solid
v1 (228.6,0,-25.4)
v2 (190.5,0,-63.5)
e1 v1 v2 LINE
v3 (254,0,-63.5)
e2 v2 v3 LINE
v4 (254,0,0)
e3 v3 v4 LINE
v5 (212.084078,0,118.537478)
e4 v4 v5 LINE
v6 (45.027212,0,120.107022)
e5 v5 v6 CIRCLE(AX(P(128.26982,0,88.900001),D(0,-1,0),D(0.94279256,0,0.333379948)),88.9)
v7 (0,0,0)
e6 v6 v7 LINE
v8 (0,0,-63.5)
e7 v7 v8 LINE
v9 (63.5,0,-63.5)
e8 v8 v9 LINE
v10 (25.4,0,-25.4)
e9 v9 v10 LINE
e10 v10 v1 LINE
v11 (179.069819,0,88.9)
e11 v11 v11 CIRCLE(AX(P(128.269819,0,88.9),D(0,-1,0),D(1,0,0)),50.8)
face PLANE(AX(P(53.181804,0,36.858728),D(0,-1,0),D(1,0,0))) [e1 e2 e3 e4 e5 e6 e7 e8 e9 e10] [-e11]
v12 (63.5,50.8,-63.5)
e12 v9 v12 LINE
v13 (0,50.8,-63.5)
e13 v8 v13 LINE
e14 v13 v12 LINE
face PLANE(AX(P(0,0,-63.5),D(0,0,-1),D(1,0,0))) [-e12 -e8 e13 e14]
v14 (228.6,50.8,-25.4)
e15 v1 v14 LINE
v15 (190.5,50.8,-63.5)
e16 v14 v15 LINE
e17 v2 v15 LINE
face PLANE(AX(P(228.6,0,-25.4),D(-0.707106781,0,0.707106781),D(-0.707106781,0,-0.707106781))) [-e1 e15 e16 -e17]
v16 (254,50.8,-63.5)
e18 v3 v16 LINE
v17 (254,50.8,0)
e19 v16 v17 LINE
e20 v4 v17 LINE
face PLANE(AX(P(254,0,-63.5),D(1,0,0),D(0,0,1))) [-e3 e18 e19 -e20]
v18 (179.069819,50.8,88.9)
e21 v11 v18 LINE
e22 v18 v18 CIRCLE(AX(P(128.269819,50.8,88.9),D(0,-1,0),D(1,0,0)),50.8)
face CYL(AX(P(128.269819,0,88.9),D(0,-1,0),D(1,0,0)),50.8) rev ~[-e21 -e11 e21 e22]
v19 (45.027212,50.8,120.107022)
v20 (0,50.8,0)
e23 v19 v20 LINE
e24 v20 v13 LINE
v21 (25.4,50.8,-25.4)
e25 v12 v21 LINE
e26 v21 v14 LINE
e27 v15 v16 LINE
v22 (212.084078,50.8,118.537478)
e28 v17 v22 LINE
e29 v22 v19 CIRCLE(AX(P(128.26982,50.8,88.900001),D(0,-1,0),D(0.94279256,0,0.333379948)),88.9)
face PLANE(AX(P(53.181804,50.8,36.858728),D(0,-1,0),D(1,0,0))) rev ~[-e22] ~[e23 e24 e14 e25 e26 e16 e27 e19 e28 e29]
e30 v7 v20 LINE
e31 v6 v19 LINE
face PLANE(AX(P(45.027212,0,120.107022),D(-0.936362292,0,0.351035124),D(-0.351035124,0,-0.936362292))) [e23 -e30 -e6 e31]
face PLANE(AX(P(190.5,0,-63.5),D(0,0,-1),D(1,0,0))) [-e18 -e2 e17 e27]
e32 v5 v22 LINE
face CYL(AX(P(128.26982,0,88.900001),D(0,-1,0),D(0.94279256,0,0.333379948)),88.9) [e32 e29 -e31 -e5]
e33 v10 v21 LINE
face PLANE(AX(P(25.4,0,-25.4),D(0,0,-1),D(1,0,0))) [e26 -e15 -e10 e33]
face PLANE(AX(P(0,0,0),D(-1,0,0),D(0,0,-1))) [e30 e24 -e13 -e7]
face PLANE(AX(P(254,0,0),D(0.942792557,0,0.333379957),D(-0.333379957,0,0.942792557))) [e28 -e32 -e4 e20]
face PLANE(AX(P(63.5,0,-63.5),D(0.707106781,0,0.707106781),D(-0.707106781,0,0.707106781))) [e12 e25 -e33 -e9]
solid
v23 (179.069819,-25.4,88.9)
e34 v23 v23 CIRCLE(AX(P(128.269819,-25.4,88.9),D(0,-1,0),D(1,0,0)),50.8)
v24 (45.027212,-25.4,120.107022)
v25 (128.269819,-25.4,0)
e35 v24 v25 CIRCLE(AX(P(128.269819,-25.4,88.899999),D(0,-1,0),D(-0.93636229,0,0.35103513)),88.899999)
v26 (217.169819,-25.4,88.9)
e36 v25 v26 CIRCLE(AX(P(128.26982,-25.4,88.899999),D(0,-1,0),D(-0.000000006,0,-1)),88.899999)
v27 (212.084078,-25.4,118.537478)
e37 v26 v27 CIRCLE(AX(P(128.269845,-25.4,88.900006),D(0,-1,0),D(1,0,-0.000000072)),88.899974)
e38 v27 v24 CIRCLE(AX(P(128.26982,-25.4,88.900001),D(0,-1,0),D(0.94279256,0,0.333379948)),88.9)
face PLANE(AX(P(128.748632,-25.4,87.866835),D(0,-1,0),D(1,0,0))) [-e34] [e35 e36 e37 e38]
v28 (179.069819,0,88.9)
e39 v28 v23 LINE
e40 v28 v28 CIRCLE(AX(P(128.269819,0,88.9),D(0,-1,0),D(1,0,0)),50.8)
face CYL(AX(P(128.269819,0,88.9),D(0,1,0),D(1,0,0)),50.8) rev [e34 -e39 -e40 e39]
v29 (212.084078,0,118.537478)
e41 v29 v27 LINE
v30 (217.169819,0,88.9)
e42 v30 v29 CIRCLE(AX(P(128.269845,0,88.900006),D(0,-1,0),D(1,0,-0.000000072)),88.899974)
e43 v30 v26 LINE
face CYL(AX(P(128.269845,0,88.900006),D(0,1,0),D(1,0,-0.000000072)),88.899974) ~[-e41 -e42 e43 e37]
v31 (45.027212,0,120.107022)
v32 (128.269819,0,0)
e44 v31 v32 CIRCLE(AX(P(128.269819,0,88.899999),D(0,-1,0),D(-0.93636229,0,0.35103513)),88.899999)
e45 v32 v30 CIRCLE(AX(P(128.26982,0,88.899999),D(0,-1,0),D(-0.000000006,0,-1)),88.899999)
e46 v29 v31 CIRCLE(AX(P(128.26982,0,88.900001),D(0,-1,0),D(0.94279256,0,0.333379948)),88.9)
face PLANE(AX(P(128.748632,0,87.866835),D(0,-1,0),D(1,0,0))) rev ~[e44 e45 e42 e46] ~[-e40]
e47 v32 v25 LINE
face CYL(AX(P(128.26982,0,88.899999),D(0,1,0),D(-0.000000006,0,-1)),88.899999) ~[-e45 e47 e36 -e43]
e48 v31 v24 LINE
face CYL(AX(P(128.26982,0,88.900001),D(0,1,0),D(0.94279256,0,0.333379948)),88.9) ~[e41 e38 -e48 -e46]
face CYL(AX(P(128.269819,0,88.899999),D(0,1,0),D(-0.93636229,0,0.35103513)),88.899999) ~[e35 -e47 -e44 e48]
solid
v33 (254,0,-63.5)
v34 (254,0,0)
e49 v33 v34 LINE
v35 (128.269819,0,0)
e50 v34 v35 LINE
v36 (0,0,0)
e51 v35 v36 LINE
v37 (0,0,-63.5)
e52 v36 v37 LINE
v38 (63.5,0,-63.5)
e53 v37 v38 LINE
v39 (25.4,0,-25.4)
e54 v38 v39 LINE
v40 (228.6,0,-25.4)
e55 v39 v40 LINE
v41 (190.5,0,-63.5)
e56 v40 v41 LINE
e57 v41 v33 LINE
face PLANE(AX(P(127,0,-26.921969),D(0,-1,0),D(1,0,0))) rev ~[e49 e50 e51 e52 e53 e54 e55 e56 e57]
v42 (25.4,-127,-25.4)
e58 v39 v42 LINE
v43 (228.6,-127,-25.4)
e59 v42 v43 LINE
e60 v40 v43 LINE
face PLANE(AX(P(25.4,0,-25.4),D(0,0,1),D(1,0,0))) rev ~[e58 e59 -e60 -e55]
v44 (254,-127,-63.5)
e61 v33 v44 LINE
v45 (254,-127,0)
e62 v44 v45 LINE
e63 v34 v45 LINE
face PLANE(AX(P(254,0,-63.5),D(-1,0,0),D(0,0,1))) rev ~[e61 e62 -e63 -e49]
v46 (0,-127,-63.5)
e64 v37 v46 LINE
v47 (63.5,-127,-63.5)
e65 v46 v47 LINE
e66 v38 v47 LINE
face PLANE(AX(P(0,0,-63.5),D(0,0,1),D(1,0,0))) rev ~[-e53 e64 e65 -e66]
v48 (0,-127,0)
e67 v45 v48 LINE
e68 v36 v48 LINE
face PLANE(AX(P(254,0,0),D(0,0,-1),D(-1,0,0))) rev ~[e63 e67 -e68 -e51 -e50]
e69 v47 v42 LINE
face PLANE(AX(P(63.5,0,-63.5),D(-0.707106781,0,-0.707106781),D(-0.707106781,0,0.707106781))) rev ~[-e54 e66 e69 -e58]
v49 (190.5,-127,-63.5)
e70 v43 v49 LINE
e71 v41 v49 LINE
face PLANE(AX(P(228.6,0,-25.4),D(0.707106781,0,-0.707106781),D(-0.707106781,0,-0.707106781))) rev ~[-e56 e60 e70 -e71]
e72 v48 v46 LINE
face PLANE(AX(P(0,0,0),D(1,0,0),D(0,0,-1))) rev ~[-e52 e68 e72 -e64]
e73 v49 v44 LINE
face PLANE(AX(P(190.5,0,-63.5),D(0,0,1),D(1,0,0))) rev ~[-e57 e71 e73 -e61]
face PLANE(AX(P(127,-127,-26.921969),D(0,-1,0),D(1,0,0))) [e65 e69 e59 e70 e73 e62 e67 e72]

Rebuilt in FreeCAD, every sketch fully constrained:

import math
import FreeCAD as App
import Part
import Sketcher

V = App.Vector
Q = App.Units.Quantity

doc = App.newDocument("Part")
body = doc.addObject("PartDesign::Body", "Body")
body.AllowCompound = True

sketch1 = doc.addObject("Sketcher::SketchObject", "Sketch")
body.addObject(sketch1)
sketch1.AttachmentSupport = (doc.XZ_Plane, [""])
sketch1.MapMode = "FlatFace"
sketch1.addGeometry(Part.LineSegment(V(0, 0, 0), V(0, -63.5, 0)), False)
sketch1.addGeometry(Part.LineSegment(V(0, -63.5, 0), V(63.5, -63.5, 0)), False)
sketch1.addGeometry(Part.LineSegment(V(63.5, -63.5, 0), V(25.4, -25.4, 0)), False)
sketch1.addGeometry(Part.LineSegment(V(25.4, -25.4, 0), V(228.6, -25.4, 0)), False)
sketch1.addGeometry(Part.LineSegment(V(228.6, -25.4, 0), V(190.5, -63.5, 0)), False)
sketch1.addGeometry(Part.LineSegment(V(190.5, -63.5, 0), V(254, -63.5, 0)), False)
sketch1.addGeometry(Part.LineSegment(V(254, -63.5, 0), V(254, 0, 0)), False)
sketch1.addGeometry(Part.LineSegment(V(254, 0, 0), V(0, 0, 0)), False)
sketch1.addConstraint(Sketcher.Constraint("Coincident", 0, 2, 1, 1))
sketch1.addConstraint(Sketcher.Constraint("Coincident", 1, 2, 2, 1))
sketch1.addConstraint(Sketcher.Constraint("Coincident", 2, 2, 3, 1))
sketch1.addConstraint(Sketcher.Constraint("Coincident", 3, 2, 4, 1))
sketch1.addConstraint(Sketcher.Constraint("Coincident", 4, 2, 5, 1))
sketch1.addConstraint(Sketcher.Constraint("Coincident", 5, 2, 6, 1))
sketch1.addConstraint(Sketcher.Constraint("Coincident", 6, 2, 7, 1))
sketch1.addConstraint(Sketcher.Constraint("Coincident", 7, 2, 0, 1))
sketch1.addConstraint(Sketcher.Constraint("Vertical", 0))
sketch1.addConstraint(Sketcher.Constraint("Horizontal", 1))
sketch1.addConstraint(Sketcher.Constraint("Horizontal", 3))
sketch1.addConstraint(Sketcher.Constraint("Horizontal", 5))
sketch1.addConstraint(Sketcher.Constraint("Vertical", 6))
sketch1.addConstraint(Sketcher.Constraint("Horizontal", 7))
sketch1.addConstraint(Sketcher.Constraint("Coincident", 7, 2, -1, 1))
sketch1.addConstraint(Sketcher.Constraint("Perpendicular", 2, 4))
sketch1.addConstraint(Sketcher.Constraint("Horizontal", 1, 2, 4, 2))
sketch1.addConstraint(Sketcher.Constraint("Equal", 1, 5))
sketch1.addConstraint(Sketcher.Constraint("Equal", 5, 0))
sketch1.addConstraint(Sketcher.Constraint("Equal", 2, 4))
sketch1.addConstraint(Sketcher.Constraint("DistanceX", 3, 1, 3, 2, Q("8 in")))
sketch1.addConstraint(Sketcher.Constraint("DistanceX", 7, 2, 7, 1, Q("10 in")))
sketch1.addConstraint(Sketcher.Constraint("DistanceX", 1, 1, 1, 2, Q("2.5 in")))
pad1 = doc.addObject("PartDesign::Pad", "Pad")
body.addObject(pad1)
pad1.Profile = sketch1
pad1.Length = Q("5 in")

sketch2 = doc.addObject("Sketcher::SketchObject", "Sketch001")
body.addObject(sketch2)
sketch2.AttachmentSupport = (doc.XZ_Plane, [""])
sketch2.MapMode = "FlatFace"
sketch2.addGeometry(Part.ArcOfCircle(Part.Circle(V(128.269819, 88.899999, 0), V(0, 0, 1), 88.899999), math.radians(159.449359), math.radians(270)), False)
sketch2.addGeometry(Part.ArcOfCircle(Part.Circle(V(128.26982, 88.899999, 0), V(0, 0, 1), 88.899999), math.radians(-90), math.radians(0)), False)
sketch2.addGeometry(Part.ArcOfCircle(Part.Circle(V(128.269845, 88.900006, 0), V(0, 0, 1), 88.899974), math.radians(-0.000004), math.radians(19.474055)), False)
sketch2.addGeometry(Part.ArcOfCircle(Part.Circle(V(128.26982, 88.900001, 0), V(0, 0, 1), 88.9), math.radians(19.474053), math.radians(159.44936)), False)
sketch2.addGeometry(Part.Circle(V(128.269819, 88.9, 0), V(0, 0, 1), 50.8), False)
sketch2.addConstraint(Sketcher.Constraint("Coincident", 0, 2, 1, 1))
sketch2.addConstraint(Sketcher.Constraint("Coincident", 1, 2, 2, 1))
sketch2.addConstraint(Sketcher.Constraint("Coincident", 2, 2, 3, 1))
sketch2.addConstraint(Sketcher.Constraint("Coincident", 3, 2, 0, 1))
sketch2.addConstraint(Sketcher.Constraint("Coincident", 1, 3, 0, 3))
sketch2.addConstraint(Sketcher.Constraint("Coincident", 3, 3, 0, 3))
sketch2.addConstraint(Sketcher.Constraint("Coincident", 4, 3, 0, 3))
sketch2.addConstraint(Sketcher.Constraint("PointOnObject", 0, 2, -1))
sketch2.addConstraint(Sketcher.Constraint("Diameter", 4, Q("4 in")))
sketch2.addConstraint(Sketcher.Constraint("Radius", 0, Q("3.5 in")))
sketch2.addConstraint(Sketcher.Constraint("DistanceY", -1, 1, 1, 2, Q("3.5 in")))
sketch2.addConstraint(Sketcher.Constraint("Radius", 2, Q("88.899974 mm")))
sketch2.addConstraint(Sketcher.Constraint("DistanceX", -1, 1, 0, 3, Q("128.269819 mm")))
sketch2.addConstraint(Sketcher.Constraint("DistanceX", -1, 1, 0, 2, Q("128.269819 mm")))
sketch2.addConstraint(Sketcher.Constraint("DistanceX", -1, 1, 2, 2, Q("212.084078 mm")))
sketch2.addConstraint(Sketcher.Constraint("DistanceX", -1, 1, 3, 2, Q("45.027212 mm")))
pad2 = doc.addObject("PartDesign::Pad", "Pad001")
body.addObject(pad2)
pad2.Profile = sketch2
pad2.Length = Q("1 in")
body2 = doc.addObject("PartDesign::Body", "Body001")

sketch3 = doc.addObject("Sketcher::SketchObject", "Sketch002")
body2.addObject(sketch3)
sketch3.AttachmentSupport = (doc.getObject("XZ_Plane001"), [""])
sketch3.MapMode = "FlatFace"
sketch3.addGeometry(Part.LineSegment(V(45.027212, 120.107022, 0), V(0, 0, 0)), False)
sketch3.addGeometry(Part.LineSegment(V(0, 0, 0), V(0, -63.5, 0)), False)
sketch3.addGeometry(Part.LineSegment(V(0, -63.5, 0), V(63.5, -63.5, 0)), False)
sketch3.addGeometry(Part.LineSegment(V(63.5, -63.5, 0), V(25.4, -25.4, 0)), False)
sketch3.addGeometry(Part.LineSegment(V(25.4, -25.4, 0), V(228.6, -25.4, 0)), False)
sketch3.addGeometry(Part.LineSegment(V(228.6, -25.4, 0), V(190.5, -63.5, 0)), False)
sketch3.addGeometry(Part.LineSegment(V(190.5, -63.5, 0), V(254, -63.5, 0)), False)
sketch3.addGeometry(Part.LineSegment(V(254, -63.5, 0), V(254, 0, 0)), False)
sketch3.addGeometry(Part.LineSegment(V(254, 0, 0), V(212.084078, 118.537478, 0)), False)
sketch3.addGeometry(Part.ArcOfCircle(Part.Circle(V(128.26982, 88.900001, 0), V(0, 0, 1), 88.9), math.radians(19.474053), math.radians(159.44936)), False)
sketch3.addGeometry(Part.Circle(V(128.269819, 88.9, 0), V(0, 0, 1), 50.8), False)
sketch3.addConstraint(Sketcher.Constraint("Coincident", 0, 2, 1, 1))
sketch3.addConstraint(Sketcher.Constraint("Coincident", 1, 2, 2, 1))
sketch3.addConstraint(Sketcher.Constraint("Coincident", 2, 2, 3, 1))
sketch3.addConstraint(Sketcher.Constraint("Coincident", 3, 2, 4, 1))
sketch3.addConstraint(Sketcher.Constraint("Coincident", 4, 2, 5, 1))
sketch3.addConstraint(Sketcher.Constraint("Coincident", 5, 2, 6, 1))
sketch3.addConstraint(Sketcher.Constraint("Coincident", 6, 2, 7, 1))
sketch3.addConstraint(Sketcher.Constraint("Coincident", 7, 2, 8, 1))
sketch3.addConstraint(Sketcher.Constraint("Tangent", 8, 2, 9, 1))
sketch3.addConstraint(Sketcher.Constraint("Tangent", 9, 2, 0, 1))
sketch3.addConstraint(Sketcher.Constraint("Vertical", 1))
sketch3.addConstraint(Sketcher.Constraint("Horizontal", 2))
sketch3.addConstraint(Sketcher.Constraint("Horizontal", 4))
sketch3.addConstraint(Sketcher.Constraint("Horizontal", 6))
sketch3.addConstraint(Sketcher.Constraint("Vertical", 7))
sketch3.addConstraint(Sketcher.Constraint("Coincident", 0, 2, -1, 1))
sketch3.addConstraint(Sketcher.Constraint("Coincident", 10, 3, 9, 3))
sketch3.addConstraint(Sketcher.Constraint("PointOnObject", 7, 2, -1))
sketch3.addConstraint(Sketcher.Constraint("Perpendicular", 3, 5))
sketch3.addConstraint(Sketcher.Constraint("Horizontal", 2, 2, 5, 2))
sketch3.addConstraint(Sketcher.Constraint("Equal", 2, 6))
sketch3.addConstraint(Sketcher.Constraint("Equal", 6, 1))
sketch3.addConstraint(Sketcher.Constraint("Equal", 3, 5))
sketch3.addConstraint(Sketcher.Constraint("Diameter", 10, Q("4 in")))
sketch3.addConstraint(Sketcher.Constraint("Radius", 9, Q("3.5 in")))
sketch3.addConstraint(Sketcher.Constraint("DistanceX", 4, 1, 4, 2, Q("8 in")))
sketch3.addConstraint(Sketcher.Constraint("DistanceX", 2, 1, 2, 2, Q("2.5 in")))
sketch3.addConstraint(Sketcher.Constraint("DistanceX", -1, 1, 3, 2, Q("1 in")))
sketch3.addConstraint(Sketcher.Constraint("DistanceY", 1, 2, 10, 3, Q("6 in")))
sketch3.addConstraint(Sketcher.Constraint("Distance", 0, Q("128.269819 mm")))
pad3 = doc.addObject("PartDesign::Pad", "Pad002")
body2.addObject(pad3)
pad3.Profile = sketch3
pad3.Length = Q("2 in")
pad3.Reversed = True

doc.recompute()
